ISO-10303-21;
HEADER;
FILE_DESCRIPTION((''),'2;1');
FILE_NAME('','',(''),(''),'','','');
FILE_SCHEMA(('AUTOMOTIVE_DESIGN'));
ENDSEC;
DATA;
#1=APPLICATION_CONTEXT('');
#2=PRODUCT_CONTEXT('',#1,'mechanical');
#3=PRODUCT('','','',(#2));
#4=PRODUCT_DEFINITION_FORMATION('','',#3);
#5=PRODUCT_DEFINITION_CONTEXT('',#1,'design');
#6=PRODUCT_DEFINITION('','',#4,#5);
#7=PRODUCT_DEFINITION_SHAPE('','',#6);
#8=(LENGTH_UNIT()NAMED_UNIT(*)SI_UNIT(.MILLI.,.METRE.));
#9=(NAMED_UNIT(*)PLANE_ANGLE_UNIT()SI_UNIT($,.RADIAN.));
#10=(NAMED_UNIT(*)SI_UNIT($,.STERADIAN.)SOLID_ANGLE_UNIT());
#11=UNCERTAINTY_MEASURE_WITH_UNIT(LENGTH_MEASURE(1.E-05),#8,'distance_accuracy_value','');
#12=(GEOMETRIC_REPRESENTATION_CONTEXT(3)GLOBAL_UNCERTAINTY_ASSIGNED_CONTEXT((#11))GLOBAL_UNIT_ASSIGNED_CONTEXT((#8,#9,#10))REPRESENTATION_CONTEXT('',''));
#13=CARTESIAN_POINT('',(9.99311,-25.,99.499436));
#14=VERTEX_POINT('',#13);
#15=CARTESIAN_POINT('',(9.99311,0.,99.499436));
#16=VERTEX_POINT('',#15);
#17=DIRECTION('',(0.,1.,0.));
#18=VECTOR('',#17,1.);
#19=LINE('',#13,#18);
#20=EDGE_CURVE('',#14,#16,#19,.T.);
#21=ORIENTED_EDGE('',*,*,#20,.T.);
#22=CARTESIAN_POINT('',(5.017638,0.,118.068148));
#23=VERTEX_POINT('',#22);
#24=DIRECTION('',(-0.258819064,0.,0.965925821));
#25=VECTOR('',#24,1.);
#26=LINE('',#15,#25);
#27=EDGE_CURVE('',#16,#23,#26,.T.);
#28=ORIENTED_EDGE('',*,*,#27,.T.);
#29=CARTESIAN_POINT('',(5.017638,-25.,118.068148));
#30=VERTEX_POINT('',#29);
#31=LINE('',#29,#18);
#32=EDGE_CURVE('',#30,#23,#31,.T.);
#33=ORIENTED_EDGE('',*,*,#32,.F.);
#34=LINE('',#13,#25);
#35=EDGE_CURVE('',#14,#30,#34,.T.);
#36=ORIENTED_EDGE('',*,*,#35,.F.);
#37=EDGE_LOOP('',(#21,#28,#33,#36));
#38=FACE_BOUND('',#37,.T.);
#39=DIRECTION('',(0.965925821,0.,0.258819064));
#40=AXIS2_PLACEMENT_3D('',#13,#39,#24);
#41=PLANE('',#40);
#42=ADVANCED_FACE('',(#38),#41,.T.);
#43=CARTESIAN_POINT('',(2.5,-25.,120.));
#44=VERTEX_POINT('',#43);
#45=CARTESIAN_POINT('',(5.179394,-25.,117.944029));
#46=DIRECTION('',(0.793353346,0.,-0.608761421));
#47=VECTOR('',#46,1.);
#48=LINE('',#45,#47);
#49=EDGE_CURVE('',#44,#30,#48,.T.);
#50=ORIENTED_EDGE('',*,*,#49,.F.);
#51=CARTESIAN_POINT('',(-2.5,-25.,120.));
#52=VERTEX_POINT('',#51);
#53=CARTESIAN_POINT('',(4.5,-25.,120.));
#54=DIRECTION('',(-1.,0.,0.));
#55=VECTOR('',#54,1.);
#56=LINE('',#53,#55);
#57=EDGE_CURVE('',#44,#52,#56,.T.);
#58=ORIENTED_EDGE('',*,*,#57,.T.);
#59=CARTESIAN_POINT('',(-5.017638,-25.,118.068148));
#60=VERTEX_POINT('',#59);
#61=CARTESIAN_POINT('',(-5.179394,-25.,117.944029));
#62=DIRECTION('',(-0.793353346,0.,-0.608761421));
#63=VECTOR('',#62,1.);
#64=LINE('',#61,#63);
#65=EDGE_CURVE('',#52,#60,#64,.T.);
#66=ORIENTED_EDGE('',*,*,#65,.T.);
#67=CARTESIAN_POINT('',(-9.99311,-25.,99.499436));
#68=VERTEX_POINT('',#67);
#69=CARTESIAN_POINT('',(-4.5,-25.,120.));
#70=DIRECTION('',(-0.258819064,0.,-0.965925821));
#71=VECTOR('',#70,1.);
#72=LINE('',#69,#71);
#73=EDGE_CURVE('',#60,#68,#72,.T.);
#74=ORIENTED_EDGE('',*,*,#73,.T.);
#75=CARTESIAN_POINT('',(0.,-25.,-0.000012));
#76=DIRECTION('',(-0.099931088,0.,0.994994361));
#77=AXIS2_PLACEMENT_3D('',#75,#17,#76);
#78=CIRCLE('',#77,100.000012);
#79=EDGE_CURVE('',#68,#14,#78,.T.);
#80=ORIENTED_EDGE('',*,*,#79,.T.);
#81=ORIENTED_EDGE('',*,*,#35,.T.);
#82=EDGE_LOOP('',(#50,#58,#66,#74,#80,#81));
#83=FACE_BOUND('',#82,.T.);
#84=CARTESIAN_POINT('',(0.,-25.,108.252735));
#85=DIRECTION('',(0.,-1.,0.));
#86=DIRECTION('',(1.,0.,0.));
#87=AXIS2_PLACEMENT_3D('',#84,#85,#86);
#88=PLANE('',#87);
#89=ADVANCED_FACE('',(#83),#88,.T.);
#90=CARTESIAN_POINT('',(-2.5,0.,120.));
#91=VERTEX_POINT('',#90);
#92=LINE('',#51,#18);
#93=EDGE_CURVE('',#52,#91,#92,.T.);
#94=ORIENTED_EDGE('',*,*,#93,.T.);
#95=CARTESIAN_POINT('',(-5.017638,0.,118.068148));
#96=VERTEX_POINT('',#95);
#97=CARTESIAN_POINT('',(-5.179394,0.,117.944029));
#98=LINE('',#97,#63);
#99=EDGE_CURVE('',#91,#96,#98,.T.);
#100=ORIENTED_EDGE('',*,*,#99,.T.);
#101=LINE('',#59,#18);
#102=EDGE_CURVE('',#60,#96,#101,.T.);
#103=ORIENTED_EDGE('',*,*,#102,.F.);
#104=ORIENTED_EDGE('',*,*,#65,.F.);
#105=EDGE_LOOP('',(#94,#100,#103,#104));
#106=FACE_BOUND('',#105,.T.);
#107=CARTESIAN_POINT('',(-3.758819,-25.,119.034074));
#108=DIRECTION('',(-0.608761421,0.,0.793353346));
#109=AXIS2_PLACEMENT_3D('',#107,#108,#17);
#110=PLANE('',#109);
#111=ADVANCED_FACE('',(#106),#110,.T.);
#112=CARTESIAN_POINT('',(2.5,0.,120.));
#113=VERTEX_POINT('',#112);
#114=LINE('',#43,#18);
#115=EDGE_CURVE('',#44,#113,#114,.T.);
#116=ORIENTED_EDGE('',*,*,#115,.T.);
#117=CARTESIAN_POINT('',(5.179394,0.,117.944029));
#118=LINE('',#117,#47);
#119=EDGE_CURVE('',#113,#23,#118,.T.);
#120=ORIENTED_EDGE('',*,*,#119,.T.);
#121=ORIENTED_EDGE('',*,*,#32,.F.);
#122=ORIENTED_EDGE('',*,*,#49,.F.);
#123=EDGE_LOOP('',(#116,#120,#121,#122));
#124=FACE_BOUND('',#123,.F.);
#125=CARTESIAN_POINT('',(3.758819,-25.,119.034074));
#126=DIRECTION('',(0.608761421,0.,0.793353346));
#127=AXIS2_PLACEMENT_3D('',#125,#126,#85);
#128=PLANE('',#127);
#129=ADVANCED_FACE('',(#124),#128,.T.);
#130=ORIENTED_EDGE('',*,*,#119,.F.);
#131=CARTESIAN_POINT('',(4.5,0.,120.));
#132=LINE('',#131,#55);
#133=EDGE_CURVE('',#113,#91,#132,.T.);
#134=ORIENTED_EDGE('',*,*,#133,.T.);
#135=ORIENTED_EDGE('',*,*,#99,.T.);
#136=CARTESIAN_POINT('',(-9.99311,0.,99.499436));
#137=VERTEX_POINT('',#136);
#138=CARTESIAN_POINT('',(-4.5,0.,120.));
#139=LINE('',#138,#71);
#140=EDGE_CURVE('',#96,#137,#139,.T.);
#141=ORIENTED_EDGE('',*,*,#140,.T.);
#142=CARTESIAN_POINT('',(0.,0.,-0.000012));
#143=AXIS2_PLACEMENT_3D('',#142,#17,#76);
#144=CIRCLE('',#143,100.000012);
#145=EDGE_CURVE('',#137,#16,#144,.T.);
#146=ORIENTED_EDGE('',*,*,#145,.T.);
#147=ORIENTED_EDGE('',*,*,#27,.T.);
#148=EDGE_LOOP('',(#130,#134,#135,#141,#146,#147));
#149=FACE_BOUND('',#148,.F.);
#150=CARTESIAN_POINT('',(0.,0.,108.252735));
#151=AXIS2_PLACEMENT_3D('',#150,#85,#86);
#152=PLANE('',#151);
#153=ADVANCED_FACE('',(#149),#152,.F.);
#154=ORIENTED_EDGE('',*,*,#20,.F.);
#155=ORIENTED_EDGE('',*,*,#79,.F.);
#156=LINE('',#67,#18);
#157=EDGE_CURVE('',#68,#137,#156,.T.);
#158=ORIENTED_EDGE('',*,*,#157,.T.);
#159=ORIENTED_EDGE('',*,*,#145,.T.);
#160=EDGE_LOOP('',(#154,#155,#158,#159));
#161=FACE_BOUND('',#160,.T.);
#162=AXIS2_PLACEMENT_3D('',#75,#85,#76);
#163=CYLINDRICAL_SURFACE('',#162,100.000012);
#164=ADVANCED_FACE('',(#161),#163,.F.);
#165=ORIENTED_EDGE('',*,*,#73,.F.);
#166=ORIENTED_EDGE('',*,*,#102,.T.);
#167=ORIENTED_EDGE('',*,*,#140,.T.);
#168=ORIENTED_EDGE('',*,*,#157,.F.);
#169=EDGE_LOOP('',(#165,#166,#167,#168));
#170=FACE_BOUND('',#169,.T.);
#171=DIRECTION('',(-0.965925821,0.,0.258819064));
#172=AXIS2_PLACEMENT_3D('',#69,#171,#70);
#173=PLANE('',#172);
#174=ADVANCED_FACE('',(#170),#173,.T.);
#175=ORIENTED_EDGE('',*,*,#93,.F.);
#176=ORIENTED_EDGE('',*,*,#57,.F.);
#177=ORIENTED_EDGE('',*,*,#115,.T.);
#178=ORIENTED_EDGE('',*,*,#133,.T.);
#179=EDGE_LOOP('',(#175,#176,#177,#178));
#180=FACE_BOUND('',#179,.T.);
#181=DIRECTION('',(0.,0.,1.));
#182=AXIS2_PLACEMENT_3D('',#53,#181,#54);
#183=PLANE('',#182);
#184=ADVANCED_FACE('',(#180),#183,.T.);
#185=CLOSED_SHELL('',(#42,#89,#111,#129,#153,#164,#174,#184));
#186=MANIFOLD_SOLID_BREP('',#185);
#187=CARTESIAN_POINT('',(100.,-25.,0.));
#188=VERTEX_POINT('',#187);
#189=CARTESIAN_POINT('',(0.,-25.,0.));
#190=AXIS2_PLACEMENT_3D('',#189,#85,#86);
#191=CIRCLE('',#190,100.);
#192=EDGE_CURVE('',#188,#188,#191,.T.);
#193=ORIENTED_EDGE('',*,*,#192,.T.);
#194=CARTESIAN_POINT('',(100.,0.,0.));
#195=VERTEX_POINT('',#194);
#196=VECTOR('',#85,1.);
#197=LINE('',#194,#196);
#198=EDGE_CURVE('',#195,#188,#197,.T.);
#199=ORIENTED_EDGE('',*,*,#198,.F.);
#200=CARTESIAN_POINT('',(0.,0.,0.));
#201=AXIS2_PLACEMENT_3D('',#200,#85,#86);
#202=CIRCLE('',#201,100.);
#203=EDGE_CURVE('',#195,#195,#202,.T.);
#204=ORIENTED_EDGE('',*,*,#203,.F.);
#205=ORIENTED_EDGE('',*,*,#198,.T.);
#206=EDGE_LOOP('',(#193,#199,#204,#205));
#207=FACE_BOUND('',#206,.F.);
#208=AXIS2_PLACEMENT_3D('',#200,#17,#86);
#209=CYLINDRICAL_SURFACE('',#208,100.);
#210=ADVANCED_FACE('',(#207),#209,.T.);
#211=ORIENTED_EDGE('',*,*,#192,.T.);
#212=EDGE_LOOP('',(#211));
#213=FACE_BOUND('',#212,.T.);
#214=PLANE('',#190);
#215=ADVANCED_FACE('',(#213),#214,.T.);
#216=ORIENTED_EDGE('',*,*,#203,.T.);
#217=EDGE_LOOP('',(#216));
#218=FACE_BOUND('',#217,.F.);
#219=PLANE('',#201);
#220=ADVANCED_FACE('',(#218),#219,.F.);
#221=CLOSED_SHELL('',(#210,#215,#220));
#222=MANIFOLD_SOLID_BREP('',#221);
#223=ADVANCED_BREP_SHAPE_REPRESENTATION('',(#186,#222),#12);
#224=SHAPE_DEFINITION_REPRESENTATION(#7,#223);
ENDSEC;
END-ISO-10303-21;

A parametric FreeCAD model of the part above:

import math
import FreeCAD as App
import Part
import Sketcher
from FreeCAD import Vector
Q = App.Units.Quantity


def edges_at(feature, points):
    """Names of the edges that pass closest to the given points."""
    edges = feature.Shape.Edges
    near = lambda p: min(range(len(edges)), key=lambda i: edges[i].distToShape(Part.Vertex(*p))[0])
    return sorted({f"Edge{near(p) + 1}" for p in points})

doc = App.newDocument("Part")
params = doc.addObject("Spreadsheet::Sheet", "Params")
for row, (alias, value) in enumerate([
    ("sketch1_diameter", "200 mm"),
    ("pad1_length", "25 mm"),
    ("sketch2_width", "9 mm"),
    ("pad2_length", "25 mm"),
    ("chamfer_size", "2 mm"),
], start=1):
    params.set(f"A{row}", alias)
    params.set(f"B{row}", "=" + value)
    params.setAlias(f"B{row}", alias)

body = doc.addObject("PartDesign::Body", "Body")

# Sketch on XZ plane
sketch1 = body.newObject("Sketcher::SketchObject", "Sketch")
sketch1.AttachmentSupport = (doc.getObject("XZ_Plane"), [""])
sketch1.MapMode = "FlatFace"
sketch1.addGeometry(Part.Circle(Vector(0, 0, 0), Vector(0, 0, 1), 100), False)
sketch1.addConstraint(Sketcher.Constraint("Coincident", 0, 3, -1, 1))
sketch1.addConstraint(Sketcher.Constraint("Diameter", 0, Q("200 mm")))
sketch1.setExpression("Constraints[1]", "Params.sketch1_diameter")
pad1 = body.newObject("PartDesign::Pad", "Pad")
pad1.Profile = sketch1
pad1.setExpression("Length", "Params.pad1_length")
body2 = doc.addObject("PartDesign::Body", "Body001")

# Sketch on XZ plane
sketch2 = body2.newObject("Sketcher::SketchObject", "Sketch001")
sketch2.AttachmentSupport = (doc.getObject("XZ_Plane001"), [""])
sketch2.MapMode = "FlatFace"
sketch2.AttachmentOffset = App.Placement(Vector(0, 0, 25), App.Rotation())
sketch2.addGeometry(Part.LineSegment(Vector(4.5, 120, 0), Vector(-4.5, 120, 0)), False)
sketch2.addGeometry(Part.LineSegment(Vector(-4.5, 120, 0), Vector(-9.99311, 99.499436, 0)), False)
sketch2.addGeometry(Part.ArcOfCircle(Part.Circle(Vector(0, -0.000012, 0), Vector(0, 0, 1), 100.000012), math.radians(84.264798), math.radians(95.735202)), False)
sketch2.addGeometry(Part.LineSegment(Vector(9.99311, 99.499436, 0), Vector(4.5, 120, 0)), False)
sketch2.addConstraint(Sketcher.Constraint("Coincident", 0, 2, 1, 1))
sketch2.addConstraint(Sketcher.Constraint("Coincident", 1, 2, 2, 2))
sketch2.addConstraint(Sketcher.Constraint("Coincident", 2, 1, 3, 1))
sketch2.addConstraint(Sketcher.Constraint("Coincident", 3, 2, 0, 1))
sketch2.addConstraint(Sketcher.Constraint("Horizontal", 0))
sketch2.addConstraint(Sketcher.Constraint("Symmetric", 1, 2, 2, 1, -2))
sketch2.addConstraint(Sketcher.Constraint("Equal", 1, 3))
sketch2.addConstraint(Sketcher.Constraint("DistanceX", 0, 2, 0, 1, Q("9 mm")))
sketch2.addConstraint(Sketcher.Constraint("Angle", 1, Q("-105.000001 deg")))
sketch2.addConstraint(Sketcher.Constraint("DistanceY", -1, 1, 0, 2, Q("120 mm")))
sketch2.addConstraint(Sketcher.Constraint("Radius", 2, Q("100.000012 mm")))
sketch2.addConstraint(Sketcher.Constraint("DistanceX", 1, 2, -1, 1, Q("9.99311 mm")))
sketch2.setExpression("Constraints[7]", "Params.sketch2_width")
pad2 = body2.newObject("PartDesign::Pad", "Pad001")
pad2.Profile = sketch2
pad2.setExpression("Length", "Params.pad2_length")
pad2.Reversed = True
doc.recompute()

chamfer = body2.newObject("PartDesign::Chamfer", "Chamfer")
chamfer.Base = (pad2, edges_at(pad2, [(4.5, -12.5, 120), (-4.5, -12.5, 120)]))
chamfer.setExpression("Size", "Params.chamfer_size")

doc.recompute()
